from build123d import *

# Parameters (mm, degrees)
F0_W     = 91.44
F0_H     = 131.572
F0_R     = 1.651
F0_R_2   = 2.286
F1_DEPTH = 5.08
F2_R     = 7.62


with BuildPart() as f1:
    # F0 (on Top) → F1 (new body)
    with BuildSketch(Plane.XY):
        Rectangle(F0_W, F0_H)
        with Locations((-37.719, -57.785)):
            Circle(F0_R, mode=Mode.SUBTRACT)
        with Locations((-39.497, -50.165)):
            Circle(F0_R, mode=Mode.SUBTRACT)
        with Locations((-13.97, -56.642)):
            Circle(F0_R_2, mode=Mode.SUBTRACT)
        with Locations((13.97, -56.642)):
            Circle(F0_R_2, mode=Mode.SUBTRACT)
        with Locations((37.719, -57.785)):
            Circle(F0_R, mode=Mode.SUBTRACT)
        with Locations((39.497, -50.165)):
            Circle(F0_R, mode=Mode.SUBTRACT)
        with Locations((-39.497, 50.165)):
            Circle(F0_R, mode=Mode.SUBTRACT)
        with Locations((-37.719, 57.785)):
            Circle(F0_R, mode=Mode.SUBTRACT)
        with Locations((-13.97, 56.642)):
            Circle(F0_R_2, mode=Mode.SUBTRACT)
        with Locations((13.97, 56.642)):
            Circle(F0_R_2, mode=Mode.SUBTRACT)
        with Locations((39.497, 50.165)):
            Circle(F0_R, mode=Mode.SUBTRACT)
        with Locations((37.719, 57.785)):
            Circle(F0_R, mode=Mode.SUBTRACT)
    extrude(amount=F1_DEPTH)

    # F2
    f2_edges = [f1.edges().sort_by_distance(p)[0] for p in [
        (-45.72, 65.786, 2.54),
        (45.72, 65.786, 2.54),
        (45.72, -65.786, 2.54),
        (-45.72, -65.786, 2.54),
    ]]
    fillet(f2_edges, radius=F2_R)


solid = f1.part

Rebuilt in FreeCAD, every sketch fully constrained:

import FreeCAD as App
import Part
import Sketcher
from FreeCAD import Vector
Q = App.Units.Quantity


def edges_at(feature, points):
    """Names of the edges that pass closest to the given points."""
    edges = feature.Shape.Edges
    near = lambda p: min(range(len(edges)), key=lambda i: edges[i].distToShape(Part.Vertex(*p))[0])
    return sorted({f"Edge{near(p) + 1}" for p in points})


def add_polygon(sketch, points):
    """Adds a closed chain of lines whose ends are joined by coincident constraints."""
    first, n = sketch.GeometryCount, len(points)
    for a, b in zip(points, points[1:] + points[:1]):
        sketch.addGeometry(Part.LineSegment(App.Vector(*a, 0), App.Vector(*b, 0)), False)
    for i in range(n):
        sketch.addConstraint(Sketcher.Constraint("Coincident", first + i, 2, first + (i + 1) % n, 1))

doc = App.newDocument("Part")
body = doc.addObject("PartDesign::Body", "Body")

sketch1 = doc.addObject("Sketcher::SketchObject", "Sketch")
body.addObject(sketch1)
sketch1.AttachmentSupport = (doc.XY_Plane, [""])
sketch1.MapMode = "FlatFace"
add_polygon(sketch1, [(-45.72, 65.786), (-45.72, -65.786), (45.72, -65.786), (45.72, 65.786)])
sketch1.addGeometry(Part.Circle(Vector(-37.719, -57.785, 0), Vector(0, 0, 1), 1.651), False)
sketch1.addGeometry(Part.Circle(Vector(-39.497, -50.165, 0), Vector(0, 0, 1), 1.651), False)
sketch1.addGeometry(Part.Circle(Vector(-13.97, -56.642, 0), Vector(0, 0, 1), 2.286), False)
sketch1.addGeometry(Part.Circle(Vector(13.97, -56.642, 0), Vector(0, 0, 1), 2.286), False)
sketch1.addGeometry(Part.Circle(Vector(37.719, -57.785, 0), Vector(0, 0, 1), 1.651), False)
sketch1.addGeometry(Part.Circle(Vector(39.497, -50.165, 0), Vector(0, 0, 1), 1.651), False)
sketch1.addGeometry(Part.Circle(Vector(-39.497, 50.165, 0), Vector(0, 0, 1), 1.651), False)
sketch1.addGeometry(Part.Circle(Vector(-37.719, 57.785, 0), Vector(0, 0, 1), 1.651), False)
sketch1.addGeometry(Part.Circle(Vector(-13.97, 56.642, 0), Vector(0, 0, 1), 2.286), False)
sketch1.addGeometry(Part.Circle(Vector(13.97, 56.642, 0), Vector(0, 0, 1), 2.286), False)
sketch1.addGeometry(Part.Circle(Vector(39.497, 50.165, 0), Vector(0, 0, 1), 1.651), False)
sketch1.addGeometry(Part.Circle(Vector(37.719, 57.785, 0), Vector(0, 0, 1), 1.651), False)
sketch1.addConstraint(Sketcher.Constraint("Vertical", 0))
sketch1.addConstraint(Sketcher.Constraint("Horizontal", 1))
sketch1.addConstraint(Sketcher.Constraint("Vertical", 2))
sketch1.addConstraint(Sketcher.Constraint("Horizontal", 3))
sketch1.addConstraint(Sketcher.Constraint("Equal", 4, 5))
sketch1.addConstraint(Sketcher.Constraint("Equal", 6, 7))
sketch1.addConstraint(Sketcher.Constraint("Equal", 5, 8))
sketch1.addConstraint(Sketcher.Constraint("Equal", 8, 9))
sketch1.addConstraint(Sketcher.Constraint("Equal", 9, 10))
sketch1.addConstraint(Sketcher.Constraint("Equal", 10, 11))
sketch1.addConstraint(Sketcher.Constraint("Equal", 7, 12))
sketch1.addConstraint(Sketcher.Constraint("Equal", 12, 13))
sketch1.addConstraint(Sketcher.Constraint("Equal", 11, 14))
sketch1.addConstraint(Sketcher.Constraint("Equal", 14, 15))
sketch1.addConstraint(Sketcher.Constraint("Symmetric", 9, 3, 10, 3, -1, 1))
sketch1.addConstraint(Sketcher.Constraint("Symmetric", 8, 3, 11, 3, -1, 1))
sketch1.addConstraint(Sketcher.Constraint("Symmetric", 7, 3, 12, 3, -1, 1))
sketch1.addConstraint(Sketcher.Constraint("Symmetric", 6, 3, 13, 3, -1, 1))
sketch1.addConstraint(Sketcher.Constraint("Symmetric", 5, 3, 14, 3, -1, 1))
sketch1.addConstraint(Sketcher.Constraint("Symmetric", 4, 3, 15, 3, -1, 1))
sketch1.addConstraint(Sketcher.Constraint("Symmetric", 0, 2, 2, 2, -1, 1))
sketch1.addConstraint(Sketcher.Constraint("Symmetric", 6, 3, 7, 3, -2))
sketch1.addConstraint(Sketcher.Constraint("Symmetric", 4, 3, 8, 3, -2))
sketch1.addConstraint(Sketcher.Constraint("Symmetric", 5, 3, 9, 3, -2))
sketch1.addConstraint(Sketcher.Constraint("Diameter", 4, Q("0.13 in")))
sketch1.addConstraint(Sketcher.Constraint("Diameter", 6, Q("0.18 in")))
sketch1.addConstraint(Sketcher.Constraint("DistanceX", 1, 1, 1, 2, Q("3.6 in")))
sketch1.addConstraint(Sketcher.Constraint("DistanceY", 0, 2, 0, 1, Q("5.18 in")))
sketch1.addConstraint(Sketcher.Constraint("DistanceY", 4, 3, 5, 3, Q("0.3 in")))
sketch1.addConstraint(Sketcher.Constraint("DistanceX", 6, 3, 7, 3, Q("1.1 in")))
sketch1.addConstraint(Sketcher.Constraint("DistanceY", 6, 3, -1, 1, Q("2.23 in")))
sketch1.addConstraint(Sketcher.Constraint("DistanceX", 5, 3, 4, 3, Q("0.07 in")))
sketch1.addConstraint(Sketcher.Constraint("DistanceX", 4, 3, 8, 3, Q("2.97 in")))
sketch1.addConstraint(Sketcher.Constraint("DistanceY", 5, 3, 10, 3, Q("3.95 in")))
pad1 = doc.addObject("PartDesign::Pad", "Pad")
body.addObject(pad1)
pad1.Profile = sketch1
pad1.Length = Q("0.2 in")
doc.recompute()

fillet = doc.addObject("PartDesign::Fillet", "Fillet")
body.addObject(fillet)
fillet.Base = (pad1, edges_at(pad1, [
    (-45.72, 65.786, 2.54),
    (45.72, 65.786, 2.54),
    (45.72, -65.786, 2.54),
    (-45.72, -65.786, 2.54),
]))
fillet.Radius = Q("0.3 in")

doc.recompute()
